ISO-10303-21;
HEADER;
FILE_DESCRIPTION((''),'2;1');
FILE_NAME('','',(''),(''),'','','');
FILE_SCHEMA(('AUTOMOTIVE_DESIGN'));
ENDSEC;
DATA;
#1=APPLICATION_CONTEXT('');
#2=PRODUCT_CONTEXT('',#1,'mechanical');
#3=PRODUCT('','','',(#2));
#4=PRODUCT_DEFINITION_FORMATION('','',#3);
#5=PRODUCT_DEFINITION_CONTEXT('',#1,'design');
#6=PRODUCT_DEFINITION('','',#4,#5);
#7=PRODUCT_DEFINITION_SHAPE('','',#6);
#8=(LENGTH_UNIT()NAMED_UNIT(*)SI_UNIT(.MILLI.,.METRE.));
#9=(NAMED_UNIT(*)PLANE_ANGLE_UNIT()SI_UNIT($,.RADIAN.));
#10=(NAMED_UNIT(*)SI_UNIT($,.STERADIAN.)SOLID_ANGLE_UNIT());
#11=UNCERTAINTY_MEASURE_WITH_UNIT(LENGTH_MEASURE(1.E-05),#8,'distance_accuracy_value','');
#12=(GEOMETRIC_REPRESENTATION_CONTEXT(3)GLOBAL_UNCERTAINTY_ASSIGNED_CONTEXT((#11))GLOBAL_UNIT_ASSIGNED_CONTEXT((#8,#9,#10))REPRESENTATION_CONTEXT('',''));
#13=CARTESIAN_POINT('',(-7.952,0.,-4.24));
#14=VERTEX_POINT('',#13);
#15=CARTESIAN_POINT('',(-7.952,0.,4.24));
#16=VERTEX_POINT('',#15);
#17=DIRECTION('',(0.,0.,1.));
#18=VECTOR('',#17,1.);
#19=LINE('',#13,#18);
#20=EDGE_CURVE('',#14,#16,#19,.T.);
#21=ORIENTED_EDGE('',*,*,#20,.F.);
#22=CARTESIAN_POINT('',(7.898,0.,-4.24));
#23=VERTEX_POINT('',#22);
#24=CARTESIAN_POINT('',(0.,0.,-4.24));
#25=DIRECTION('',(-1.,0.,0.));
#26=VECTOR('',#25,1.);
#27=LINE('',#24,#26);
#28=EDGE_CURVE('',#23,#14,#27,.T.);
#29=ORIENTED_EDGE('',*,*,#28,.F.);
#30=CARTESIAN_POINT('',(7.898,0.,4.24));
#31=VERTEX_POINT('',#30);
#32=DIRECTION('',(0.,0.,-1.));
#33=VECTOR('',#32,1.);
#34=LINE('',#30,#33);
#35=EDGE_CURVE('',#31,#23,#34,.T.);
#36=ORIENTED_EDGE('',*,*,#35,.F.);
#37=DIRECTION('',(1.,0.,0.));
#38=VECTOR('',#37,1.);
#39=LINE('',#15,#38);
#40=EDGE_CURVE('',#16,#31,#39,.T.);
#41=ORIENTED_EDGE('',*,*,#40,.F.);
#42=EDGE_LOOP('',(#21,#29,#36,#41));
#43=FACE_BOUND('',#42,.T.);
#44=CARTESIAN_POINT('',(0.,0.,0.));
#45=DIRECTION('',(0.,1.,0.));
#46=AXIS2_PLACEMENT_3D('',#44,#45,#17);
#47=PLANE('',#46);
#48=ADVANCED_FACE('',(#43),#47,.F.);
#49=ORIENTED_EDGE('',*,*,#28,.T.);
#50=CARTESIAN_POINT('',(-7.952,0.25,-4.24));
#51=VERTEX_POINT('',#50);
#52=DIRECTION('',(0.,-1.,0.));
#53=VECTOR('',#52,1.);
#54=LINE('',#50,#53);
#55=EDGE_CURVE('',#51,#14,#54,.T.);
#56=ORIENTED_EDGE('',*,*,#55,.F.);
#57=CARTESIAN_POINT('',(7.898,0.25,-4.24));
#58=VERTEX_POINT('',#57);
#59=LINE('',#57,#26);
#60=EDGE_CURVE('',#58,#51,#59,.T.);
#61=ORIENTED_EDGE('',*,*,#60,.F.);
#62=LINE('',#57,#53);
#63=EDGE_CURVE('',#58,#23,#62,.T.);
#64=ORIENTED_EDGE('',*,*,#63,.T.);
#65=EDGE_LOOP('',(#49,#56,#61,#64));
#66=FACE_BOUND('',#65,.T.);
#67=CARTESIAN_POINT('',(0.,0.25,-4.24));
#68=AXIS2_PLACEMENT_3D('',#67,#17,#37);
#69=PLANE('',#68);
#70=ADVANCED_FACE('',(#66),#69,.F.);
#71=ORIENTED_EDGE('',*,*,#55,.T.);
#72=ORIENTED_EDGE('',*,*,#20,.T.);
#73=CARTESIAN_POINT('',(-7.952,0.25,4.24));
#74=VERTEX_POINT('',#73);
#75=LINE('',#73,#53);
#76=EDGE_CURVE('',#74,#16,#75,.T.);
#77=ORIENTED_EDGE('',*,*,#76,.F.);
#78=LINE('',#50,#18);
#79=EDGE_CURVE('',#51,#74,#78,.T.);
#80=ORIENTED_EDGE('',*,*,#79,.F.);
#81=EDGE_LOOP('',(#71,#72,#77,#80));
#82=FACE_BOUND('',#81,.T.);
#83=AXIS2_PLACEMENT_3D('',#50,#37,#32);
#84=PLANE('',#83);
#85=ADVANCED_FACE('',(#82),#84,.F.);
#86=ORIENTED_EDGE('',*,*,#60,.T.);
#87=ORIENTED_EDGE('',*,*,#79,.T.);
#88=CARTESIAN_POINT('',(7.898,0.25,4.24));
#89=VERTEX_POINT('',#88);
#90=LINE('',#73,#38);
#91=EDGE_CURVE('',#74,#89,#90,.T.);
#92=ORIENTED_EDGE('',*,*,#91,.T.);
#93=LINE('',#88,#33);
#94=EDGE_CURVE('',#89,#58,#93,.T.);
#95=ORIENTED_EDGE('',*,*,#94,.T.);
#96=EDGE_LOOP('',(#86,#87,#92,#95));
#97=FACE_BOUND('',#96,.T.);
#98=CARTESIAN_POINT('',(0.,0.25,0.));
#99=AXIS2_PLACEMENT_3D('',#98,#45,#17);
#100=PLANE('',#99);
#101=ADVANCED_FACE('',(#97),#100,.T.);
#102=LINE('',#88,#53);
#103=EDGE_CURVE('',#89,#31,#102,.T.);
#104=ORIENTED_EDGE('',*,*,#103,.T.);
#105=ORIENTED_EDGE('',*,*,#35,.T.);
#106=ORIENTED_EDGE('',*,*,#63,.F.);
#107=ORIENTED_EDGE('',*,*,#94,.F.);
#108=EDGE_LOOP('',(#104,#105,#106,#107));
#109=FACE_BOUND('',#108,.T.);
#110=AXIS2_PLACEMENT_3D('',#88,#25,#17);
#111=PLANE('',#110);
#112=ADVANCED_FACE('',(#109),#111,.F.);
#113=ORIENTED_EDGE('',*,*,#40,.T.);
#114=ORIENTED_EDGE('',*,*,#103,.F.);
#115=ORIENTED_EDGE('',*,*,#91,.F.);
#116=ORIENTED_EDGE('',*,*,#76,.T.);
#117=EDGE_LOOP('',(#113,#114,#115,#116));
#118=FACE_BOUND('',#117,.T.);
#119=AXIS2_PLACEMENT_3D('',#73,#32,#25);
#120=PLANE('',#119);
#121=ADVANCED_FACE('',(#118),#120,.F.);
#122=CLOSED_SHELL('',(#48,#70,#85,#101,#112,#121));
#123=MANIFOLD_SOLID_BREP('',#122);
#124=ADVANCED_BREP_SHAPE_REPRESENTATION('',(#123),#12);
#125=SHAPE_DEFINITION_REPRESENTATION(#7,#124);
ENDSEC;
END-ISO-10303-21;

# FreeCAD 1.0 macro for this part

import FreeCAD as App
import Part
import Sketcher
Q = App.Units.Quantity


def add_polygon(sketch, points):
    """Adds a closed chain of lines whose ends are joined by coincident constraints."""
    first, n = sketch.GeometryCount, len(points)
    for a, b in zip(points, points[1:] + points[:1]):
        sketch.addGeometry(Part.LineSegment(App.Vector(*a, 0), App.Vector(*b, 0)), False)
    for i in range(n):
        sketch.addConstraint(Sketcher.Constraint("Coincident", first + i, 2, first + (i + 1) % n, 1))

doc = App.newDocument("Part")
body = doc.addObject("PartDesign::Body", "Body")

# Sketch on XZ plane
sketch1 = body.newObject("Sketcher::SketchObject", "Sketch")
sketch1.AttachmentSupport = (doc.getObject("XZ_Plane"), [""])
sketch1.MapMode = "FlatFace"
add_polygon(sketch1, [(8, -4), (-8, -4), (-8, 4), (8, 4)])  # lines 0-3
sketch1.addConstraint([
    Sketcher.Constraint("Horizontal", 0),
    Sketcher.Constraint("Vertical", 1),
    Sketcher.Constraint("Horizontal", 2),
    Sketcher.Constraint("Vertical", 3),
    Sketcher.Constraint("DistanceX", 0, 2, 0, 1, Q("15.85 mm")),
    Sketcher.Constraint("DistanceY", 1, 1, 1, 2, Q("8.48 mm")),
    Sketcher.Constraint("DistanceY", 0, 2, -1, 1, Q("4.24 mm")),
    Sketcher.Constraint("DistanceX", 0, 2, -1, 1, Q("7.952 mm")),
])
pad1 = body.newObject("PartDesign::Pad", "Pad")
pad1.Profile = sketch1
pad1.Length = 0.25
pad1.Reversed = True

doc.recompute()
